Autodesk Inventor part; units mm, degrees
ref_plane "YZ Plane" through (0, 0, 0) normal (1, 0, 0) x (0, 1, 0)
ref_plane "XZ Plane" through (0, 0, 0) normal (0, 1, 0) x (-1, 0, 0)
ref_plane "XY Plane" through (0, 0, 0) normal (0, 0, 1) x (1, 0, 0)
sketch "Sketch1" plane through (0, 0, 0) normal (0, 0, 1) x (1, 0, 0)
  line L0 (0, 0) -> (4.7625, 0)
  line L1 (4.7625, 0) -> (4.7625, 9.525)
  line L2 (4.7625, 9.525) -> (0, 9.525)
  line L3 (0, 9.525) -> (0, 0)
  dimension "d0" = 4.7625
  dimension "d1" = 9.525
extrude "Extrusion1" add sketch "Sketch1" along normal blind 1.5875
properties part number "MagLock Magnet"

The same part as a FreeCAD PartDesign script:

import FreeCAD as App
import Part
import Sketcher
from FreeCAD import Vector
Q = App.Units.Quantity

doc = App.newDocument("Part")
body = doc.addObject("PartDesign::Body", "Body")

# Sketch on XY plane
sketch1 = body.newObject("Sketcher::SketchObject", "Sketch")
sketch1.AttachmentSupport = (doc.getObject("XY_Plane"), [""])
sketch1.MapMode = "FlatFace"
sketch1.addGeometry([
    Part.LineSegment(Vector(0, 9.5, 0), Vector(0, 0, 0)),
    Part.LineSegment(Vector(0, 0, 0), Vector(4.8, 0, 0)),
    Part.LineSegment(Vector(4.8, 0, 0), Vector(4.8, 9.5, 0)),
    Part.LineSegment(Vector(4.8, 9.5, 0), Vector(0, 9.5, 0)),
], False)
sketch1.addConstraint([
    Sketcher.Constraint("Coincident", 0, 2, 1, 1),
    Sketcher.Constraint("Coincident", 1, 2, 2, 1),
    Sketcher.Constraint("Coincident", 2, 2, 3, 1),
    Sketcher.Constraint("Coincident", 3, 2, 0, 1),
    Sketcher.Constraint("Vertical", 0),
    Sketcher.Constraint("Horizontal", 1),
    Sketcher.Constraint("Vertical", 2),
    Sketcher.Constraint("Horizontal", 3),
    Sketcher.Constraint("Coincident", 0, 2, -1, 1),
    Sketcher.Constraint("DistanceX", 1, 1, 1, 2, Q("0.1875 in")),
    Sketcher.Constraint("DistanceY", 0, 2, 0, 1, Q("0.375 in")),
])
pad1 = body.newObject("PartDesign::Pad", "Pad")
pad1.Profile = sketch1
pad1.Length = Q("0.0625 in")

doc.recompute()
